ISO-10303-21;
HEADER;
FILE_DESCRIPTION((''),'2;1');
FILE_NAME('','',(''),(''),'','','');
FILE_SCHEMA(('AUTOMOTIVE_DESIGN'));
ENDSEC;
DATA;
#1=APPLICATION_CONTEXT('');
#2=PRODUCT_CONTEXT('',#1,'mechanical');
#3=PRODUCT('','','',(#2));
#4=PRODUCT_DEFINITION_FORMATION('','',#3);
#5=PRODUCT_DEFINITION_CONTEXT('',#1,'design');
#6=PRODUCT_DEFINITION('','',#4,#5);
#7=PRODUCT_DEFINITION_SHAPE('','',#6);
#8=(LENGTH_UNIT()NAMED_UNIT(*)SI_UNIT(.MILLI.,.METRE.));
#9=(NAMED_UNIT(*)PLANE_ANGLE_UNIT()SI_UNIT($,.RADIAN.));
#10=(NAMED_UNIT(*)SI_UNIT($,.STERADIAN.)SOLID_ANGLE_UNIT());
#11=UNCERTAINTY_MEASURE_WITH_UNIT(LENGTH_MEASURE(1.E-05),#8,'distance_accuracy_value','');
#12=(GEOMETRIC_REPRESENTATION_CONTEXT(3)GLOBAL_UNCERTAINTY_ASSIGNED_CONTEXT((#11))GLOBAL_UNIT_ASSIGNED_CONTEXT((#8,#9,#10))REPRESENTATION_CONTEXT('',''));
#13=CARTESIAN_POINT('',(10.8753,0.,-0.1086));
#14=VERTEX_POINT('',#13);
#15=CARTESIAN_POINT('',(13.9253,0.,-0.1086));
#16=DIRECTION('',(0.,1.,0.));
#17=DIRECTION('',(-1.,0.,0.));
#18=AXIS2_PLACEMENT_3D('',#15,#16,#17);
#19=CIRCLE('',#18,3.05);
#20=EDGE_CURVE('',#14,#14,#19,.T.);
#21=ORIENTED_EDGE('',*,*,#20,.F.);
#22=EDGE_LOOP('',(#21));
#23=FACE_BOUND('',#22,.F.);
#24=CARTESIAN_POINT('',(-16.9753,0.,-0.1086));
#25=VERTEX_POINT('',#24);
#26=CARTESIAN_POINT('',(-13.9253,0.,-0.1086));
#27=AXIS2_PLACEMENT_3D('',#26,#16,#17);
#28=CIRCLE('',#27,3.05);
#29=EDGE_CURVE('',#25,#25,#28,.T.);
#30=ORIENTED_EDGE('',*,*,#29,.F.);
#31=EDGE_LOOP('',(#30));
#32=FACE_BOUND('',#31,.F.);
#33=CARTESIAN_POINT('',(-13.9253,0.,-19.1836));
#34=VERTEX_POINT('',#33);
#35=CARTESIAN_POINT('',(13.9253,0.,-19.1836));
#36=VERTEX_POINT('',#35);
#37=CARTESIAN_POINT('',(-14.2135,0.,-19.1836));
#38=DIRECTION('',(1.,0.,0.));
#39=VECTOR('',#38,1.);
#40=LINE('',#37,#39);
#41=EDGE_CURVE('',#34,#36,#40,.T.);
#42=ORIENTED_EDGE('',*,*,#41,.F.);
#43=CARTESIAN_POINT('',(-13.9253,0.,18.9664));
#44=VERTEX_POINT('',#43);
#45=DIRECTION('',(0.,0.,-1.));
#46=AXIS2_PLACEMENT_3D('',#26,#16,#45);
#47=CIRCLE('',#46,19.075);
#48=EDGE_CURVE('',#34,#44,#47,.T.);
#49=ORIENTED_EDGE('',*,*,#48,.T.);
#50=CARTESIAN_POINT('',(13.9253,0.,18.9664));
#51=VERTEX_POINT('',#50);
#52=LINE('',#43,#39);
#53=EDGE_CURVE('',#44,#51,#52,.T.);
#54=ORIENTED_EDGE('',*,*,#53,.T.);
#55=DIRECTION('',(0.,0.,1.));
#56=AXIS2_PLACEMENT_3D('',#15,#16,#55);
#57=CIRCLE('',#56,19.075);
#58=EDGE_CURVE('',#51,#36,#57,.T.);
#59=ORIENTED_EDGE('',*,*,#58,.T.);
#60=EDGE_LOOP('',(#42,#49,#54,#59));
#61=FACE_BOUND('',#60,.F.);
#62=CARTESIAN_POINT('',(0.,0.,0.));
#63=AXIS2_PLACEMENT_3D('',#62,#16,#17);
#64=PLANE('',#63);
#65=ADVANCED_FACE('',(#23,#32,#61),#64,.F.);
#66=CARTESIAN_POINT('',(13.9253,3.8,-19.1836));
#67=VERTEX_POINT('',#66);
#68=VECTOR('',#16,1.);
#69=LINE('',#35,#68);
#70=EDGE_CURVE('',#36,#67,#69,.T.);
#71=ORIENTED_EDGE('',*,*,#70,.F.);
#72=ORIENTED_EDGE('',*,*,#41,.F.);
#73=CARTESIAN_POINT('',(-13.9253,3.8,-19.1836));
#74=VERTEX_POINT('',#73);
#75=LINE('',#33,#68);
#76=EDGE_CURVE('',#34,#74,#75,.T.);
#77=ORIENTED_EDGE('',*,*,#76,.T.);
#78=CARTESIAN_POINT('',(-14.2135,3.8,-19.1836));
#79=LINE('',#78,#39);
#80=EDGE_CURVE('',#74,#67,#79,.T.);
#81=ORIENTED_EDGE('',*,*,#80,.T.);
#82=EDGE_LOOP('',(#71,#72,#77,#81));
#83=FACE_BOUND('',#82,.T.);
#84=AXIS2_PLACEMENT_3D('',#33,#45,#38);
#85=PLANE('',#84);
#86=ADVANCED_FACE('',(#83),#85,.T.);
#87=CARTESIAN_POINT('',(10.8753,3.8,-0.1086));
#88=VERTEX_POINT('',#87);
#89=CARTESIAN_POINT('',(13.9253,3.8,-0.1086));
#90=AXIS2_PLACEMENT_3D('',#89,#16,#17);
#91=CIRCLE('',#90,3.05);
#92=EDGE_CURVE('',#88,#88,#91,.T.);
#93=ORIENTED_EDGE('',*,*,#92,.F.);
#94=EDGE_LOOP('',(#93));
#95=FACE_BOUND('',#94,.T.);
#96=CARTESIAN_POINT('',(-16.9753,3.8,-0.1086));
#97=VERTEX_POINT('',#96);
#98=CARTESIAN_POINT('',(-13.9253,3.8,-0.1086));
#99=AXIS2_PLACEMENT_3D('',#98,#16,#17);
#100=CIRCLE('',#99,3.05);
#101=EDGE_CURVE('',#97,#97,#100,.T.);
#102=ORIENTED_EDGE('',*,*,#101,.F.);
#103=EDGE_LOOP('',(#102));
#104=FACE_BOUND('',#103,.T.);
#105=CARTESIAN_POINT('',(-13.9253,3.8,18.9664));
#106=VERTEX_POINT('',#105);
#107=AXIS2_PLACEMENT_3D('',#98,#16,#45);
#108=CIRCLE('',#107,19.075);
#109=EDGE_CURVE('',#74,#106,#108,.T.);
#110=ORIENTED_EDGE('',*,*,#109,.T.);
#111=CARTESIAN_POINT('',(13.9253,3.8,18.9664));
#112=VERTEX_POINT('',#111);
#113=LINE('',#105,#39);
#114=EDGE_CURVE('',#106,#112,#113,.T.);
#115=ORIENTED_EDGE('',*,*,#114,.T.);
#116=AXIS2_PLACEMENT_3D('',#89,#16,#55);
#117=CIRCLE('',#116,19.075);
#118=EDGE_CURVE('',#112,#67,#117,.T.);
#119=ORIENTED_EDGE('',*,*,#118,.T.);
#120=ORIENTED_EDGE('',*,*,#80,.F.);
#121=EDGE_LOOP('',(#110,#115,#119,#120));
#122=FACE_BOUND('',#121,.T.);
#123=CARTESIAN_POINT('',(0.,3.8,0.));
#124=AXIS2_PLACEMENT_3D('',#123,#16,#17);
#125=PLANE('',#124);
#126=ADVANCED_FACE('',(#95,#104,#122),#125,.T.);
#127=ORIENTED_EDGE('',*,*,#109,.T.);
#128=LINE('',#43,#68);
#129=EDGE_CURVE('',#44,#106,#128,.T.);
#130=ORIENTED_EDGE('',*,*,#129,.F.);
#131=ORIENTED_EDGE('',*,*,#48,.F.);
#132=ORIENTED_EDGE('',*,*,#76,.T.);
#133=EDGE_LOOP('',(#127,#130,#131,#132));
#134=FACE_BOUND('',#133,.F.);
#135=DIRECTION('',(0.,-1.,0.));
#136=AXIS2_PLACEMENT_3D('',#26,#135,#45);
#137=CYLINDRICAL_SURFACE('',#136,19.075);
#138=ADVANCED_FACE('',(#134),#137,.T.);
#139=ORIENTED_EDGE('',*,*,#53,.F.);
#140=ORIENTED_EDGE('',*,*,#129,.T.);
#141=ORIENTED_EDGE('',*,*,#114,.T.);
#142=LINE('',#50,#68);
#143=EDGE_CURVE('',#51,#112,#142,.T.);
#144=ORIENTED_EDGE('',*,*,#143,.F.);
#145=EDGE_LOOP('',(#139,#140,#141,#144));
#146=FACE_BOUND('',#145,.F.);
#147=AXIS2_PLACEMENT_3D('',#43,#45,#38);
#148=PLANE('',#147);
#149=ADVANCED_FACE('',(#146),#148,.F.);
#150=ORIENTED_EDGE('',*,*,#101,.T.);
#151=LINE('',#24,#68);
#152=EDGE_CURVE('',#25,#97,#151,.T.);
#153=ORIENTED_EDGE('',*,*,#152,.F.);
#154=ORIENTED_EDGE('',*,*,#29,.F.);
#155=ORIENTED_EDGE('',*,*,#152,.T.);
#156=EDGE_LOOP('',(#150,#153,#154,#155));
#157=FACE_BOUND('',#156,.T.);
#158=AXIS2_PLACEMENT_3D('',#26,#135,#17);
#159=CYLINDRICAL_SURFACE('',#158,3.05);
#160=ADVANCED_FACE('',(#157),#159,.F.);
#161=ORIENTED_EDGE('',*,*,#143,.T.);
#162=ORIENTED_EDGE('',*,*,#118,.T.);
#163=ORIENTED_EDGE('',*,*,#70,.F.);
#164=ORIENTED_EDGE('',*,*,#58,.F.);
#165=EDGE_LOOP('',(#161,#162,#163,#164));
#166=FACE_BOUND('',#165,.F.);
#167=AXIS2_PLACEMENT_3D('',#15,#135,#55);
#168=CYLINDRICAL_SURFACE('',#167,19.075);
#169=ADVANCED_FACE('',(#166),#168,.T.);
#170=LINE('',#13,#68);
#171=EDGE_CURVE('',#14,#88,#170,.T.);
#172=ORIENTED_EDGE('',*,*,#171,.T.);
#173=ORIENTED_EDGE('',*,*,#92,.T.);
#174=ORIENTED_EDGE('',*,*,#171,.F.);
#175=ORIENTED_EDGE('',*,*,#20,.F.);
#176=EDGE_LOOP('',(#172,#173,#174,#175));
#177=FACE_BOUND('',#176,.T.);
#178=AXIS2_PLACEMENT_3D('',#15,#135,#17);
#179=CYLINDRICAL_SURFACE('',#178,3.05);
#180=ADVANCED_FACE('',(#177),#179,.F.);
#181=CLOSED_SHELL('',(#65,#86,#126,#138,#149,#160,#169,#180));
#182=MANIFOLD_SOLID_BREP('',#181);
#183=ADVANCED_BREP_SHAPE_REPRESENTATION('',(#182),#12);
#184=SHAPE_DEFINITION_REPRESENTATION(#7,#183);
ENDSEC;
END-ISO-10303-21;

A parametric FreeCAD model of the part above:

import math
import FreeCAD as App
import Part
import Sketcher
Q = App.Units.Quantity

doc = App.newDocument("Part")
params = doc.addObject("Spreadsheet::Sheet", "Params")
for row, (alias, value) in enumerate([
    ("sketch1_diameter", "6.1 mm"),
    ("pad1_length", "3.8 mm"),
], start=1):
    params.set(f"A{row}", alias)
    params.set(f"B{row}", "=" + value)
    params.setAlias(f"B{row}", alias)

body = doc.addObject("PartDesign::Body", "Body")

sketch1 = body.newObject("Sketcher::SketchObject", "Sketch")
sketch1.AttachmentSupport = (doc.getObject("XZ_Plane"), [""])
sketch1.MapMode = "FlatFace"
sketch1.addGeometry(Part.LineSegment(App.Vector(13.9, -19.2, 0), App.Vector(-13.9, -19.2, 0)), False)
sketch1.addGeometry(Part.ArcOfCircle(Part.Circle(App.Vector(-13.9, -0.1, 0), App.Vector(0, 0, 1), 19.1), math.radians(90), math.radians(270)), False)
sketch1.addGeometry(Part.LineSegment(App.Vector(-13.9, 19, 0), App.Vector(13.9, 19, 0)), False)
sketch1.addGeometry(Part.ArcOfCircle(Part.Circle(App.Vector(13.9, -0.1, 0), App.Vector(0, 0, 1), 19.1), math.radians(-90), math.radians(90)), False)
sketch1.addGeometry(Part.Circle(App.Vector(13.9, -0.1, 0), App.Vector(0, 0, 1), 3), False)
sketch1.addGeometry(Part.Circle(App.Vector(-13.9, -0.1, 0), App.Vector(0, 0, 1), 3), False)
sketch1.addConstraint(Sketcher.Constraint("Tangent", 0, 2, 1, 2))
sketch1.addConstraint(Sketcher.Constraint("Tangent", 1, 1, 2, 1))
sketch1.addConstraint(Sketcher.Constraint("Tangent", 2, 2, 3, 2))
sketch1.addConstraint(Sketcher.Constraint("Tangent", 3, 1, 0, 1))
sketch1.addConstraint(Sketcher.Constraint("Horizontal", 0))
sketch1.addConstraint(Sketcher.Constraint("Horizontal", 2))
sketch1.addConstraint(Sketcher.Constraint("Coincident", 4, 3, 3, 3))
sketch1.addConstraint(Sketcher.Constraint("Coincident", 5, 3, 1, 3))
sketch1.addConstraint(Sketcher.Constraint("Equal", 4, 5))
sketch1.addConstraint(Sketcher.Constraint("Diameter", 4, Q("6.1 mm")))
sketch1.addConstraint(Sketcher.Constraint("Radius", 1, Q("19.075 mm")))
sketch1.addConstraint(Sketcher.Constraint("DistanceX", 0, 2, 0, 1, Q("27.8506 mm")))
sketch1.addConstraint(Sketcher.Constraint("DistanceX", 1, 3, -1, 1, Q("13.9253 mm")))
sketch1.addConstraint(Sketcher.Constraint("DistanceY", 1, 3, -1, 1, Q("0.1086 mm")))
sketch1.setExpression("Constraints[9]", "Params.sketch1_diameter")
pad1 = body.newObject("PartDesign::Pad", "Pad")
pad1.Profile = sketch1
pad1.setExpression("Length", "Params.pad1_length")
pad1.Reversed = True

doc.recompute()
